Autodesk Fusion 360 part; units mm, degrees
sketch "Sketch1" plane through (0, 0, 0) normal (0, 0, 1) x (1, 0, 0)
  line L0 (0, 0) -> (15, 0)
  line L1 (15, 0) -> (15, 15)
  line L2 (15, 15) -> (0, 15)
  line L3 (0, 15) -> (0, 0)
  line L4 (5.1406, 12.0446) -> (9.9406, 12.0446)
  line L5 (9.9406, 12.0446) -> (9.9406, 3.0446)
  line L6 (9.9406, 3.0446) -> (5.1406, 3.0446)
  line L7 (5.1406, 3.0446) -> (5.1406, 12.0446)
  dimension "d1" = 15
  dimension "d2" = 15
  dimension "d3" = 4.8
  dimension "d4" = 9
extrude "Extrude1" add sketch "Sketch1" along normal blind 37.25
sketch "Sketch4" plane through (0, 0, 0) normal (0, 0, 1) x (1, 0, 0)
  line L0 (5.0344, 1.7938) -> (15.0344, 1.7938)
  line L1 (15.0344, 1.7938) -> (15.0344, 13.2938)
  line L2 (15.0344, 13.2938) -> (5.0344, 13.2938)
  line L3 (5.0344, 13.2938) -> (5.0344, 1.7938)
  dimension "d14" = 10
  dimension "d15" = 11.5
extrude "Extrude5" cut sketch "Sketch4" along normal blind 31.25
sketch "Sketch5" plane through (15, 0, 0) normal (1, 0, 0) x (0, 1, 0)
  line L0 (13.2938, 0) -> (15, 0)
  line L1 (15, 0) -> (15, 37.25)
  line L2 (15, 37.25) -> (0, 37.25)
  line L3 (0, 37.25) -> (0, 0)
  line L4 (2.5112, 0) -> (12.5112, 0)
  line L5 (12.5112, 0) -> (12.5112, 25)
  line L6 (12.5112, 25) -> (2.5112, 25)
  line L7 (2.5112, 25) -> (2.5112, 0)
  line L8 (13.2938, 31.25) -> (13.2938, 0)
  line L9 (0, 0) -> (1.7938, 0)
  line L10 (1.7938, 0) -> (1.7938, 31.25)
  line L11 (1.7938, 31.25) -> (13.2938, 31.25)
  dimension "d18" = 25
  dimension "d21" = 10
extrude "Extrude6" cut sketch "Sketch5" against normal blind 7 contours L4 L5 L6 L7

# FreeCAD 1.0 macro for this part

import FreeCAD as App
import Part
import Sketcher

V = App.Vector


def add_polygon(sketch, points):
    """Adds a closed chain of lines whose ends are joined by coincident constraints."""
    first, n = sketch.GeometryCount, len(points)
    for a, b in zip(points, points[1:] + points[:1]):
        sketch.addGeometry(Part.LineSegment(App.Vector(*a, 0), App.Vector(*b, 0)), False)
    for i in range(n):
        sketch.addConstraint(Sketcher.Constraint("Coincident", first + i, 2, first + (i + 1) % n, 1))

doc = App.newDocument("Part")
params = doc.addObject("Spreadsheet::Sheet", "Params")
for row, (alias, value) in enumerate([
    ("sketch1_width", "15 mm"),
    ("sketch1_height", "9 mm"),
    ("sketch1_width2", "4.8 mm"),
    ("pad1_length", "37.25 mm"),
    ("sketch2_width", "10 mm"),
    ("sketch2_height", "11.5 mm"),
    ("pocket1_length", "31.25 mm"),
    ("sketch3_width", "10 mm"),
    ("sketch3_height", "25 mm"),
    ("pocket2_length", "7 mm"),
], start=1):
    params.set(f"A{row}", alias)
    params.set(f"B{row}", "=" + value)
    params.setAlias(f"B{row}", alias)

body = doc.addObject("PartDesign::Body", "Body")

# Sketch on XY plane
sketch1 = doc.addObject("Sketcher::SketchObject", "Sketch")
body.addObject(sketch1)
sketch1.AttachmentSupport = (doc.XY_Plane, [""])
sketch1.MapMode = "FlatFace"
add_polygon(sketch1, [(0, 15), (0, 0), (15, 0), (15, 15)])  # lines 0-3
add_polygon(sketch1, [(5.1, 3), (5.1, 12), (9.9, 12), (9.9, 3)])  # lines 4-7
sketch1.addConstraint(Sketcher.Constraint("Vertical", 0))
sketch1.addConstraint(Sketcher.Constraint("Horizontal", 1))
sketch1.addConstraint(Sketcher.Constraint("Vertical", 2))
sketch1.addConstraint(Sketcher.Constraint("Horizontal", 3))
sketch1.addConstraint(Sketcher.Constraint("Vertical", 4))
sketch1.addConstraint(Sketcher.Constraint("Horizontal", 5))
sketch1.addConstraint(Sketcher.Constraint("Vertical", 6))
sketch1.addConstraint(Sketcher.Constraint("Horizontal", 7))
sketch1.addConstraint(Sketcher.Constraint("Coincident", 0, 2, -1, 1))
sketch1.addConstraint(Sketcher.Constraint("Equal", 3, 0))
sketch1.addConstraint(Sketcher.Constraint("DistanceX", 1, 1, 1, 2, 15.0))
sketch1.addConstraint(Sketcher.Constraint("DistanceY", 4, 1, 4, 2, 9.0))
sketch1.addConstraint(Sketcher.Constraint("DistanceX", 5, 1, 5, 2, 4.8))
sketch1.addConstraint(Sketcher.Constraint("DistanceX", -1, 1, 4, 2, 5.1406))
sketch1.addConstraint(Sketcher.Constraint("DistanceY", -1, 1, 4, 2, 12.0446))
sketch1.setExpression("Constraints[18]", "Params.sketch1_width")
sketch1.setExpression("Constraints[19]", "Params.sketch1_height")
sketch1.setExpression("Constraints[20]", "Params.sketch1_width2")
pad1 = doc.addObject("PartDesign::Pad", "Pad")
body.addObject(pad1)
pad1.Profile = sketch1
pad1.setExpression("Length", "Params.pad1_length")

# Sketch on XY plane
sketch2 = doc.addObject("Sketcher::SketchObject", "Sketch001")
body.addObject(sketch2)
sketch2.AttachmentSupport = (doc.XY_Plane, [""])
sketch2.MapMode = "FlatFace"
add_polygon(sketch2, [(5, 13), (5, 2), (15, 2), (15, 13)])  # lines 0-3
sketch2.addConstraint(Sketcher.Constraint("Vertical", 0))
sketch2.addConstraint(Sketcher.Constraint("Horizontal", 1))
sketch2.addConstraint(Sketcher.Constraint("Vertical", 2))
sketch2.addConstraint(Sketcher.Constraint("Horizontal", 3))
sketch2.addConstraint(Sketcher.Constraint("DistanceX", 1, 1, 1, 2, 10.0))
sketch2.addConstraint(Sketcher.Constraint("DistanceY", 0, 2, 0, 1, 11.5))
sketch2.addConstraint(Sketcher.Constraint("DistanceX", -1, 1, 0, 2, 5.0344))
sketch2.addConstraint(Sketcher.Constraint("DistanceY", -1, 1, 0, 2, 1.7938))
sketch2.setExpression("Constraints[8]", "Params.sketch2_width")
sketch2.setExpression("Constraints[9]", "Params.sketch2_height")
pocket1 = doc.addObject("PartDesign::Pocket", "Pocket")
body.addObject(pocket1)
pocket1.Profile = sketch2
pocket1.setExpression("Length", "Params.pocket1_length")
pocket1.Reversed = True

# Sketch on YZ plane
sketch3 = doc.addObject("Sketcher::SketchObject", "Sketch002")
body.addObject(sketch3)
sketch3.AttachmentSupport = (doc.YZ_Plane, [""])
sketch3.MapMode = "FlatFace"
sketch3.AttachmentOffset = App.Placement(V(0, 0, 15), App.Rotation())
add_polygon(sketch3, [(3, 25), (3, 0), (13, 0), (13, 25)])  # lines 0-3
sketch3.addConstraint(Sketcher.Constraint("Vertical", 0))
sketch3.addConstraint(Sketcher.Constraint("Horizontal", 1))
sketch3.addConstraint(Sketcher.Constraint("Vertical", 2))
sketch3.addConstraint(Sketcher.Constraint("Horizontal", 3))
sketch3.addConstraint(Sketcher.Constraint("PointOnObject", 0, 2, -1))
sketch3.addConstraint(Sketcher.Constraint("DistanceX", 1, 1, 1, 2, 10.0))
sketch3.addConstraint(Sketcher.Constraint("DistanceY", 0, 2, 0, 1, 25.0))
sketch3.addConstraint(Sketcher.Constraint("DistanceX", -1, 1, 0, 2, 2.5112))
sketch3.setExpression("Constraints[9]", "Params.sketch3_width")
sketch3.setExpression("Constraints[10]", "Params.sketch3_height")
pocket2 = doc.addObject("PartDesign::Pocket", "Pocket001")
body.addObject(pocket2)
pocket2.Profile = sketch3
pocket2.setExpression("Length", "Params.pocket2_length")

doc.recompute()
